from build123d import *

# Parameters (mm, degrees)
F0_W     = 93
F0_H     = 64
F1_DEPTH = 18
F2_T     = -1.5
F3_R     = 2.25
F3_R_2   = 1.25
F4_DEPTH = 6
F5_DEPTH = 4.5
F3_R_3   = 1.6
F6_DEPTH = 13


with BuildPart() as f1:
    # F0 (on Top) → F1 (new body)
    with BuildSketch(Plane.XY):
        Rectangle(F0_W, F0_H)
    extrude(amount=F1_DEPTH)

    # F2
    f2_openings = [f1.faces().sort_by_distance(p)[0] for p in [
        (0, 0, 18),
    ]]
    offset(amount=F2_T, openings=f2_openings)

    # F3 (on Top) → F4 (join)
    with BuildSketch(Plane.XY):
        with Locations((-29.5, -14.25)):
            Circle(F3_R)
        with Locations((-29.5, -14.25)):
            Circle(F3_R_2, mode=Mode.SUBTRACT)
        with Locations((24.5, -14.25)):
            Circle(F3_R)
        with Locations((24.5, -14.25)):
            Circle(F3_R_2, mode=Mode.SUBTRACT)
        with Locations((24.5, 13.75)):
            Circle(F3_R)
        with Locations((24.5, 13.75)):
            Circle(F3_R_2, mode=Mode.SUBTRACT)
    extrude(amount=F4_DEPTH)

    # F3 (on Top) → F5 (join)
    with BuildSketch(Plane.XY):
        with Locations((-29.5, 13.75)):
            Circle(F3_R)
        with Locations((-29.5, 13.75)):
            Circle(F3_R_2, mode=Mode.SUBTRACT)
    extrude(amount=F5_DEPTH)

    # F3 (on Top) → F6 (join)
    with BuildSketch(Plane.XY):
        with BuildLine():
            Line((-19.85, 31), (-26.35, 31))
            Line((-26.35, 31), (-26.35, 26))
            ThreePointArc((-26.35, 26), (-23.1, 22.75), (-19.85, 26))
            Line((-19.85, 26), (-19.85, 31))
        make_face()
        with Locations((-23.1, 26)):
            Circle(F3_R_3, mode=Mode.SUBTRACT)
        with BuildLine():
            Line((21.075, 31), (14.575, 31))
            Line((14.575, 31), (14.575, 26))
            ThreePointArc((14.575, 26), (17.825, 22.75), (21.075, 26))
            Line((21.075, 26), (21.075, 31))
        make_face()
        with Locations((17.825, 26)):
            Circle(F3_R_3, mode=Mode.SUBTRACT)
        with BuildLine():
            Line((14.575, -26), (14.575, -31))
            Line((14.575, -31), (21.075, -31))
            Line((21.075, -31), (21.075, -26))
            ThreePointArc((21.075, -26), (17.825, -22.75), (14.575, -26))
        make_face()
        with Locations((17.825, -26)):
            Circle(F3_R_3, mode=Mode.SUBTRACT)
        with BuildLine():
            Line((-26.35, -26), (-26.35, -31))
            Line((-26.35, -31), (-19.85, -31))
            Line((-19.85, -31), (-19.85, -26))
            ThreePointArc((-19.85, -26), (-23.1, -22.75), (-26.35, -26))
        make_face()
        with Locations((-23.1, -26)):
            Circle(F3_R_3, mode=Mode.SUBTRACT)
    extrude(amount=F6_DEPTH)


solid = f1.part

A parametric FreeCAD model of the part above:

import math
import FreeCAD as App
import Part
import Sketcher
from FreeCAD import Vector


def faces_at(feature, points):
    """Names of the faces that lie closest to the given points."""
    faces = feature.Shape.Faces
    near = lambda p: min(range(len(faces)), key=lambda i: faces[i].distToShape(Part.Vertex(*p))[0])
    return sorted({f"Face{near(p) + 1}" for p in points})


def add_polygon(sketch, points):
    """Adds a closed chain of lines whose ends are joined by coincident constraints."""
    first, n = sketch.GeometryCount, len(points)
    for a, b in zip(points, points[1:] + points[:1]):
        sketch.addGeometry(Part.LineSegment(App.Vector(*a, 0), App.Vector(*b, 0)), False)
    for i in range(n):
        sketch.addConstraint(Sketcher.Constraint("Coincident", first + i, 2, first + (i + 1) % n, 1))

doc = App.newDocument("Part")
body = doc.addObject("PartDesign::Body", "Body")

sketch1 = body.newObject("Sketcher::SketchObject", "Sketch")
sketch1.AttachmentSupport = (doc.getObject("XY_Plane"), [""])
sketch1.MapMode = "FlatFace"
add_polygon(sketch1, [(-46, 32), (-46, -32), (46, -32), (46, 32)])
sketch1.addConstraint([
    Sketcher.Constraint("Vertical", 0),
    Sketcher.Constraint("Horizontal", 1),
    Sketcher.Constraint("Vertical", 2),
    Sketcher.Constraint("Horizontal", 3),
    Sketcher.Constraint("Symmetric", 0, 2, 2, 2, -1, 1),
    Sketcher.Constraint("DistanceX", 1, 1, 1, 2, 93.0),
    Sketcher.Constraint("DistanceY", 0, 2, 0, 1, 64.0),
])
pad1 = body.newObject("PartDesign::Pad", "Pad")
pad1.Profile = sketch1
pad1.Length = 18
doc.recompute()

thickness = body.newObject("PartDesign::Thickness", "Thickness")
thickness.Base = (pad1, faces_at(pad1, [(0, 0, 18)]))
thickness.Value = 1.5
thickness.Reversed = True
thickness.Join = "Arc"

sketch2 = body.newObject("Sketcher::SketchObject", "Sketch001")
sketch2.AttachmentSupport = (doc.getObject("XY_Plane"), [""])
sketch2.MapMode = "FlatFace"
sketch2.addGeometry([
    Part.Circle(Vector(-29.5, -14.2, 0), Vector(0, 0, 1), 2.2),
    Part.Circle(Vector(-29.5, -14.2, 0), Vector(0, 0, 1), 1.2),
    Part.Circle(Vector(24.5, -14.2, 0), Vector(0, 0, 1), 2.2),
    Part.Circle(Vector(24.5, -14.2, 0), Vector(0, 0, 1), 1.2),
    Part.Circle(Vector(24.5, 13.8, 0), Vector(0, 0, 1), 2.2),
    Part.Circle(Vector(24.5, 13.8, 0), Vector(0, 0, 1), 1.2),
], False)
sketch2.addConstraint([
    Sketcher.Constraint("Coincident", 1, 3, 0, 3),
    Sketcher.Constraint("Coincident", 3, 3, 2, 3),
    Sketcher.Constraint("Coincident", 5, 3, 4, 3),
    Sketcher.Constraint("Equal", 0, 2),
    Sketcher.Constraint("Equal", 1, 3),
    Sketcher.Constraint("Equal", 2, 4),
    Sketcher.Constraint("Equal", 3, 5),
    Sketcher.Constraint("Horizontal", 1, 3, 2, 3),
    Sketcher.Constraint("Vertical", 3, 3, 4, 3),
    Sketcher.Constraint("Diameter", 0, 4.5),
    Sketcher.Constraint("Diameter", 1, 2.5),
    Sketcher.Constraint("DistanceX", 0, 3, 2, 3, 54.0),
    Sketcher.Constraint("DistanceY", 2, 3, 4, 3, 28.0),
    Sketcher.Constraint("DistanceX", 0, 3, -1, 1, 29.5),
    Sketcher.Constraint("DistanceY", 0, 3, -1, 1, 14.25),
])
pad2 = body.newObject("PartDesign::Pad", "Pad001")
pad2.Profile = sketch2
pad2.Length = 6

sketch3 = body.newObject("Sketcher::SketchObject", "Sketch002")
sketch3.AttachmentSupport = (doc.getObject("XY_Plane"), [""])
sketch3.MapMode = "FlatFace"
sketch3.addGeometry([
    Part.Circle(Vector(-29.5, 13.8, 0), Vector(0, 0, 1), 2.2),
    Part.Circle(Vector(-29.5, 13.8, 0), Vector(0, 0, 1), 1.2),
], False)
sketch3.addConstraint([
    Sketcher.Constraint("Coincident", 1, 3, 0, 3),
    Sketcher.Constraint("Diameter", 0, 4.5),
    Sketcher.Constraint("Diameter", 1, 2.5),
    Sketcher.Constraint("DistanceX", 0, 3, -1, 1, 29.5),
    Sketcher.Constraint("DistanceY", -1, 1, 0, 3, 13.75),
])
pad3 = body.newObject("PartDesign::Pad", "Pad002")
pad3.Profile = sketch3
pad3.Length = 4.5

sketch4 = body.newObject("Sketcher::SketchObject", "Sketch003")
sketch4.AttachmentSupport = (doc.getObject("XY_Plane"), [""])
sketch4.MapMode = "FlatFace"
sketch4.addGeometry([
    Part.LineSegment(Vector(-19.9, 31, 0), Vector(-26.4, 31, 0)),
    Part.LineSegment(Vector(-26.4, 31, 0), Vector(-26.4, 26, 0)),
    Part.ArcOfCircle(Part.Circle(Vector(-23.1, 26, 0), Vector(0, 0, 1), 3.2), math.radians(180), math.radians(360)),
    Part.LineSegment(Vector(-19.9, 26, 0), Vector(-19.9, 31, 0)),
    Part.Circle(Vector(-23.1, 26, 0), Vector(0, 0, 1), 1.6),
    Part.LineSegment(Vector(21.1, 31, 0), Vector(14.6, 31, 0)),
    Part.LineSegment(Vector(14.6, 31, 0), Vector(14.6, 26, 0)),
    Part.ArcOfCircle(Part.Circle(Vector(17.8, 26, 0), Vector(0, 0, 1), 3.2), math.radians(180), math.radians(360)),
    Part.LineSegment(Vector(21.1, 26, 0), Vector(21.1, 31, 0)),
    Part.Circle(Vector(17.8, 26, 0), Vector(0, 0, 1), 1.6),
    Part.LineSegment(Vector(14.6, -26, 0), Vector(14.6, -31, 0)),
    Part.LineSegment(Vector(14.6, -31, 0), Vector(21.1, -31, 0)),
    Part.LineSegment(Vector(21.1, -31, 0), Vector(21.1, -26, 0)),
    Part.ArcOfCircle(Part.Circle(Vector(17.8, -26, 0), Vector(0, 0, 1), 3.2), math.radians(0), math.radians(180)),
    Part.Circle(Vector(17.8, -26, 0), Vector(0, 0, 1), 1.6),
    Part.LineSegment(Vector(-26.4, -26, 0), Vector(-26.4, -31, 0)),
    Part.LineSegment(Vector(-26.4, -31, 0), Vector(-19.9, -31, 0)),
    Part.LineSegment(Vector(-19.9, -31, 0), Vector(-19.9, -26, 0)),
    Part.ArcOfCircle(Part.Circle(Vector(-23.1, -26, 0), Vector(0, 0, 1), 3.2), math.radians(0), math.radians(180)),
    Part.Circle(Vector(-23.1, -26, 0), Vector(0, 0, 1), 1.6),
], False)
sketch4.addConstraint([
    Sketcher.Constraint("Coincident", 0, 2, 1, 1),
    Sketcher.Constraint("Tangent", 1, 2, 2, 1),
    Sketcher.Constraint("Tangent", 2, 2, 3, 1),
    Sketcher.Constraint("Coincident", 3, 2, 0, 1),
    Sketcher.Constraint("Coincident", 5, 2, 6, 1),
    Sketcher.Constraint("Tangent", 6, 2, 7, 1),
    Sketcher.Constraint("Tangent", 7, 2, 8, 1),
    Sketcher.Constraint("Coincident", 8, 2, 5, 1),
    Sketcher.Constraint("Coincident", 10, 2, 11, 1),
    Sketcher.Constraint("Coincident", 11, 2, 12, 1),
    Sketcher.Constraint("Tangent", 12, 2, 13, 1),
    Sketcher.Constraint("Tangent", 13, 2, 10, 1),
    Sketcher.Constraint("Coincident", 15, 2, 16, 1),
    Sketcher.Constraint("Coincident", 16, 2, 17, 1),
    Sketcher.Constraint("Tangent", 17, 2, 18, 1),
    Sketcher.Constraint("Tangent", 18, 2, 15, 1),
    Sketcher.Constraint("Horizontal", 0),
    Sketcher.Constraint("Vertical", 1),
    Sketcher.Constraint("Vertical", 3),
    Sketcher.Constraint("Horizontal", 5),
    Sketcher.Constraint("Vertical", 6),
    Sketcher.Constraint("Vertical", 8),
    Sketcher.Constraint("Vertical", 10),
    Sketcher.Constraint("Horizontal", 11),
    Sketcher.Constraint("Vertical", 12),
    Sketcher.Constraint("Vertical", 15),
    Sketcher.Constraint("Horizontal", 16),
    Sketcher.Constraint("Vertical", 17),
    Sketcher.Constraint("Coincident", 4, 3, 2, 3),
    Sketcher.Constraint("Coincident", 9, 3, 7, 3),
    Sketcher.Constraint("Coincident", 14, 3, 13, 3),
    Sketcher.Constraint("Coincident", 19, 3, 18, 3),
    Sketcher.Constraint("Equal", 2, 7),
    Sketcher.Constraint("Equal", 4, 9),
    Sketcher.Constraint("Equal", 7, 13),
    Sketcher.Constraint("Equal", 9, 14),
    Sketcher.Constraint("Equal", 13, 18),
    Sketcher.Constraint("Equal", 14, 19),
    Sketcher.Constraint("Symmetric", 7, 3, 13, 3, -1),
    Sketcher.Constraint("Symmetric", 2, 3, 18, 3, -1),
    Sketcher.Constraint("Horizontal", 4, 3, 7, 3),
    Sketcher.Constraint("Horizontal", 3, 2, 5, 2),
    Sketcher.Constraint("Horizontal", 11, 2, 15, 2),
    Sketcher.Constraint("Equal", 8, 10),
    Sketcher.Constraint("Diameter", 4, 3.2),
    Sketcher.Constraint("DistanceY", 1, 2, 1, 1, 5.0),
    Sketcher.Constraint("Radius", 2, 3.25),
    Sketcher.Constraint("DistanceY", -1, 1, 2, 3, 26.0),
    Sketcher.Constraint("DistanceX", 2, 3, -1, 1, 23.1),
    Sketcher.Constraint("DistanceX", -1, 1, 7, 3, 17.825),
])
pad4 = body.newObject("PartDesign::Pad", "Pad003")
pad4.Profile = sketch4
pad4.Length = 13

doc.recompute()
